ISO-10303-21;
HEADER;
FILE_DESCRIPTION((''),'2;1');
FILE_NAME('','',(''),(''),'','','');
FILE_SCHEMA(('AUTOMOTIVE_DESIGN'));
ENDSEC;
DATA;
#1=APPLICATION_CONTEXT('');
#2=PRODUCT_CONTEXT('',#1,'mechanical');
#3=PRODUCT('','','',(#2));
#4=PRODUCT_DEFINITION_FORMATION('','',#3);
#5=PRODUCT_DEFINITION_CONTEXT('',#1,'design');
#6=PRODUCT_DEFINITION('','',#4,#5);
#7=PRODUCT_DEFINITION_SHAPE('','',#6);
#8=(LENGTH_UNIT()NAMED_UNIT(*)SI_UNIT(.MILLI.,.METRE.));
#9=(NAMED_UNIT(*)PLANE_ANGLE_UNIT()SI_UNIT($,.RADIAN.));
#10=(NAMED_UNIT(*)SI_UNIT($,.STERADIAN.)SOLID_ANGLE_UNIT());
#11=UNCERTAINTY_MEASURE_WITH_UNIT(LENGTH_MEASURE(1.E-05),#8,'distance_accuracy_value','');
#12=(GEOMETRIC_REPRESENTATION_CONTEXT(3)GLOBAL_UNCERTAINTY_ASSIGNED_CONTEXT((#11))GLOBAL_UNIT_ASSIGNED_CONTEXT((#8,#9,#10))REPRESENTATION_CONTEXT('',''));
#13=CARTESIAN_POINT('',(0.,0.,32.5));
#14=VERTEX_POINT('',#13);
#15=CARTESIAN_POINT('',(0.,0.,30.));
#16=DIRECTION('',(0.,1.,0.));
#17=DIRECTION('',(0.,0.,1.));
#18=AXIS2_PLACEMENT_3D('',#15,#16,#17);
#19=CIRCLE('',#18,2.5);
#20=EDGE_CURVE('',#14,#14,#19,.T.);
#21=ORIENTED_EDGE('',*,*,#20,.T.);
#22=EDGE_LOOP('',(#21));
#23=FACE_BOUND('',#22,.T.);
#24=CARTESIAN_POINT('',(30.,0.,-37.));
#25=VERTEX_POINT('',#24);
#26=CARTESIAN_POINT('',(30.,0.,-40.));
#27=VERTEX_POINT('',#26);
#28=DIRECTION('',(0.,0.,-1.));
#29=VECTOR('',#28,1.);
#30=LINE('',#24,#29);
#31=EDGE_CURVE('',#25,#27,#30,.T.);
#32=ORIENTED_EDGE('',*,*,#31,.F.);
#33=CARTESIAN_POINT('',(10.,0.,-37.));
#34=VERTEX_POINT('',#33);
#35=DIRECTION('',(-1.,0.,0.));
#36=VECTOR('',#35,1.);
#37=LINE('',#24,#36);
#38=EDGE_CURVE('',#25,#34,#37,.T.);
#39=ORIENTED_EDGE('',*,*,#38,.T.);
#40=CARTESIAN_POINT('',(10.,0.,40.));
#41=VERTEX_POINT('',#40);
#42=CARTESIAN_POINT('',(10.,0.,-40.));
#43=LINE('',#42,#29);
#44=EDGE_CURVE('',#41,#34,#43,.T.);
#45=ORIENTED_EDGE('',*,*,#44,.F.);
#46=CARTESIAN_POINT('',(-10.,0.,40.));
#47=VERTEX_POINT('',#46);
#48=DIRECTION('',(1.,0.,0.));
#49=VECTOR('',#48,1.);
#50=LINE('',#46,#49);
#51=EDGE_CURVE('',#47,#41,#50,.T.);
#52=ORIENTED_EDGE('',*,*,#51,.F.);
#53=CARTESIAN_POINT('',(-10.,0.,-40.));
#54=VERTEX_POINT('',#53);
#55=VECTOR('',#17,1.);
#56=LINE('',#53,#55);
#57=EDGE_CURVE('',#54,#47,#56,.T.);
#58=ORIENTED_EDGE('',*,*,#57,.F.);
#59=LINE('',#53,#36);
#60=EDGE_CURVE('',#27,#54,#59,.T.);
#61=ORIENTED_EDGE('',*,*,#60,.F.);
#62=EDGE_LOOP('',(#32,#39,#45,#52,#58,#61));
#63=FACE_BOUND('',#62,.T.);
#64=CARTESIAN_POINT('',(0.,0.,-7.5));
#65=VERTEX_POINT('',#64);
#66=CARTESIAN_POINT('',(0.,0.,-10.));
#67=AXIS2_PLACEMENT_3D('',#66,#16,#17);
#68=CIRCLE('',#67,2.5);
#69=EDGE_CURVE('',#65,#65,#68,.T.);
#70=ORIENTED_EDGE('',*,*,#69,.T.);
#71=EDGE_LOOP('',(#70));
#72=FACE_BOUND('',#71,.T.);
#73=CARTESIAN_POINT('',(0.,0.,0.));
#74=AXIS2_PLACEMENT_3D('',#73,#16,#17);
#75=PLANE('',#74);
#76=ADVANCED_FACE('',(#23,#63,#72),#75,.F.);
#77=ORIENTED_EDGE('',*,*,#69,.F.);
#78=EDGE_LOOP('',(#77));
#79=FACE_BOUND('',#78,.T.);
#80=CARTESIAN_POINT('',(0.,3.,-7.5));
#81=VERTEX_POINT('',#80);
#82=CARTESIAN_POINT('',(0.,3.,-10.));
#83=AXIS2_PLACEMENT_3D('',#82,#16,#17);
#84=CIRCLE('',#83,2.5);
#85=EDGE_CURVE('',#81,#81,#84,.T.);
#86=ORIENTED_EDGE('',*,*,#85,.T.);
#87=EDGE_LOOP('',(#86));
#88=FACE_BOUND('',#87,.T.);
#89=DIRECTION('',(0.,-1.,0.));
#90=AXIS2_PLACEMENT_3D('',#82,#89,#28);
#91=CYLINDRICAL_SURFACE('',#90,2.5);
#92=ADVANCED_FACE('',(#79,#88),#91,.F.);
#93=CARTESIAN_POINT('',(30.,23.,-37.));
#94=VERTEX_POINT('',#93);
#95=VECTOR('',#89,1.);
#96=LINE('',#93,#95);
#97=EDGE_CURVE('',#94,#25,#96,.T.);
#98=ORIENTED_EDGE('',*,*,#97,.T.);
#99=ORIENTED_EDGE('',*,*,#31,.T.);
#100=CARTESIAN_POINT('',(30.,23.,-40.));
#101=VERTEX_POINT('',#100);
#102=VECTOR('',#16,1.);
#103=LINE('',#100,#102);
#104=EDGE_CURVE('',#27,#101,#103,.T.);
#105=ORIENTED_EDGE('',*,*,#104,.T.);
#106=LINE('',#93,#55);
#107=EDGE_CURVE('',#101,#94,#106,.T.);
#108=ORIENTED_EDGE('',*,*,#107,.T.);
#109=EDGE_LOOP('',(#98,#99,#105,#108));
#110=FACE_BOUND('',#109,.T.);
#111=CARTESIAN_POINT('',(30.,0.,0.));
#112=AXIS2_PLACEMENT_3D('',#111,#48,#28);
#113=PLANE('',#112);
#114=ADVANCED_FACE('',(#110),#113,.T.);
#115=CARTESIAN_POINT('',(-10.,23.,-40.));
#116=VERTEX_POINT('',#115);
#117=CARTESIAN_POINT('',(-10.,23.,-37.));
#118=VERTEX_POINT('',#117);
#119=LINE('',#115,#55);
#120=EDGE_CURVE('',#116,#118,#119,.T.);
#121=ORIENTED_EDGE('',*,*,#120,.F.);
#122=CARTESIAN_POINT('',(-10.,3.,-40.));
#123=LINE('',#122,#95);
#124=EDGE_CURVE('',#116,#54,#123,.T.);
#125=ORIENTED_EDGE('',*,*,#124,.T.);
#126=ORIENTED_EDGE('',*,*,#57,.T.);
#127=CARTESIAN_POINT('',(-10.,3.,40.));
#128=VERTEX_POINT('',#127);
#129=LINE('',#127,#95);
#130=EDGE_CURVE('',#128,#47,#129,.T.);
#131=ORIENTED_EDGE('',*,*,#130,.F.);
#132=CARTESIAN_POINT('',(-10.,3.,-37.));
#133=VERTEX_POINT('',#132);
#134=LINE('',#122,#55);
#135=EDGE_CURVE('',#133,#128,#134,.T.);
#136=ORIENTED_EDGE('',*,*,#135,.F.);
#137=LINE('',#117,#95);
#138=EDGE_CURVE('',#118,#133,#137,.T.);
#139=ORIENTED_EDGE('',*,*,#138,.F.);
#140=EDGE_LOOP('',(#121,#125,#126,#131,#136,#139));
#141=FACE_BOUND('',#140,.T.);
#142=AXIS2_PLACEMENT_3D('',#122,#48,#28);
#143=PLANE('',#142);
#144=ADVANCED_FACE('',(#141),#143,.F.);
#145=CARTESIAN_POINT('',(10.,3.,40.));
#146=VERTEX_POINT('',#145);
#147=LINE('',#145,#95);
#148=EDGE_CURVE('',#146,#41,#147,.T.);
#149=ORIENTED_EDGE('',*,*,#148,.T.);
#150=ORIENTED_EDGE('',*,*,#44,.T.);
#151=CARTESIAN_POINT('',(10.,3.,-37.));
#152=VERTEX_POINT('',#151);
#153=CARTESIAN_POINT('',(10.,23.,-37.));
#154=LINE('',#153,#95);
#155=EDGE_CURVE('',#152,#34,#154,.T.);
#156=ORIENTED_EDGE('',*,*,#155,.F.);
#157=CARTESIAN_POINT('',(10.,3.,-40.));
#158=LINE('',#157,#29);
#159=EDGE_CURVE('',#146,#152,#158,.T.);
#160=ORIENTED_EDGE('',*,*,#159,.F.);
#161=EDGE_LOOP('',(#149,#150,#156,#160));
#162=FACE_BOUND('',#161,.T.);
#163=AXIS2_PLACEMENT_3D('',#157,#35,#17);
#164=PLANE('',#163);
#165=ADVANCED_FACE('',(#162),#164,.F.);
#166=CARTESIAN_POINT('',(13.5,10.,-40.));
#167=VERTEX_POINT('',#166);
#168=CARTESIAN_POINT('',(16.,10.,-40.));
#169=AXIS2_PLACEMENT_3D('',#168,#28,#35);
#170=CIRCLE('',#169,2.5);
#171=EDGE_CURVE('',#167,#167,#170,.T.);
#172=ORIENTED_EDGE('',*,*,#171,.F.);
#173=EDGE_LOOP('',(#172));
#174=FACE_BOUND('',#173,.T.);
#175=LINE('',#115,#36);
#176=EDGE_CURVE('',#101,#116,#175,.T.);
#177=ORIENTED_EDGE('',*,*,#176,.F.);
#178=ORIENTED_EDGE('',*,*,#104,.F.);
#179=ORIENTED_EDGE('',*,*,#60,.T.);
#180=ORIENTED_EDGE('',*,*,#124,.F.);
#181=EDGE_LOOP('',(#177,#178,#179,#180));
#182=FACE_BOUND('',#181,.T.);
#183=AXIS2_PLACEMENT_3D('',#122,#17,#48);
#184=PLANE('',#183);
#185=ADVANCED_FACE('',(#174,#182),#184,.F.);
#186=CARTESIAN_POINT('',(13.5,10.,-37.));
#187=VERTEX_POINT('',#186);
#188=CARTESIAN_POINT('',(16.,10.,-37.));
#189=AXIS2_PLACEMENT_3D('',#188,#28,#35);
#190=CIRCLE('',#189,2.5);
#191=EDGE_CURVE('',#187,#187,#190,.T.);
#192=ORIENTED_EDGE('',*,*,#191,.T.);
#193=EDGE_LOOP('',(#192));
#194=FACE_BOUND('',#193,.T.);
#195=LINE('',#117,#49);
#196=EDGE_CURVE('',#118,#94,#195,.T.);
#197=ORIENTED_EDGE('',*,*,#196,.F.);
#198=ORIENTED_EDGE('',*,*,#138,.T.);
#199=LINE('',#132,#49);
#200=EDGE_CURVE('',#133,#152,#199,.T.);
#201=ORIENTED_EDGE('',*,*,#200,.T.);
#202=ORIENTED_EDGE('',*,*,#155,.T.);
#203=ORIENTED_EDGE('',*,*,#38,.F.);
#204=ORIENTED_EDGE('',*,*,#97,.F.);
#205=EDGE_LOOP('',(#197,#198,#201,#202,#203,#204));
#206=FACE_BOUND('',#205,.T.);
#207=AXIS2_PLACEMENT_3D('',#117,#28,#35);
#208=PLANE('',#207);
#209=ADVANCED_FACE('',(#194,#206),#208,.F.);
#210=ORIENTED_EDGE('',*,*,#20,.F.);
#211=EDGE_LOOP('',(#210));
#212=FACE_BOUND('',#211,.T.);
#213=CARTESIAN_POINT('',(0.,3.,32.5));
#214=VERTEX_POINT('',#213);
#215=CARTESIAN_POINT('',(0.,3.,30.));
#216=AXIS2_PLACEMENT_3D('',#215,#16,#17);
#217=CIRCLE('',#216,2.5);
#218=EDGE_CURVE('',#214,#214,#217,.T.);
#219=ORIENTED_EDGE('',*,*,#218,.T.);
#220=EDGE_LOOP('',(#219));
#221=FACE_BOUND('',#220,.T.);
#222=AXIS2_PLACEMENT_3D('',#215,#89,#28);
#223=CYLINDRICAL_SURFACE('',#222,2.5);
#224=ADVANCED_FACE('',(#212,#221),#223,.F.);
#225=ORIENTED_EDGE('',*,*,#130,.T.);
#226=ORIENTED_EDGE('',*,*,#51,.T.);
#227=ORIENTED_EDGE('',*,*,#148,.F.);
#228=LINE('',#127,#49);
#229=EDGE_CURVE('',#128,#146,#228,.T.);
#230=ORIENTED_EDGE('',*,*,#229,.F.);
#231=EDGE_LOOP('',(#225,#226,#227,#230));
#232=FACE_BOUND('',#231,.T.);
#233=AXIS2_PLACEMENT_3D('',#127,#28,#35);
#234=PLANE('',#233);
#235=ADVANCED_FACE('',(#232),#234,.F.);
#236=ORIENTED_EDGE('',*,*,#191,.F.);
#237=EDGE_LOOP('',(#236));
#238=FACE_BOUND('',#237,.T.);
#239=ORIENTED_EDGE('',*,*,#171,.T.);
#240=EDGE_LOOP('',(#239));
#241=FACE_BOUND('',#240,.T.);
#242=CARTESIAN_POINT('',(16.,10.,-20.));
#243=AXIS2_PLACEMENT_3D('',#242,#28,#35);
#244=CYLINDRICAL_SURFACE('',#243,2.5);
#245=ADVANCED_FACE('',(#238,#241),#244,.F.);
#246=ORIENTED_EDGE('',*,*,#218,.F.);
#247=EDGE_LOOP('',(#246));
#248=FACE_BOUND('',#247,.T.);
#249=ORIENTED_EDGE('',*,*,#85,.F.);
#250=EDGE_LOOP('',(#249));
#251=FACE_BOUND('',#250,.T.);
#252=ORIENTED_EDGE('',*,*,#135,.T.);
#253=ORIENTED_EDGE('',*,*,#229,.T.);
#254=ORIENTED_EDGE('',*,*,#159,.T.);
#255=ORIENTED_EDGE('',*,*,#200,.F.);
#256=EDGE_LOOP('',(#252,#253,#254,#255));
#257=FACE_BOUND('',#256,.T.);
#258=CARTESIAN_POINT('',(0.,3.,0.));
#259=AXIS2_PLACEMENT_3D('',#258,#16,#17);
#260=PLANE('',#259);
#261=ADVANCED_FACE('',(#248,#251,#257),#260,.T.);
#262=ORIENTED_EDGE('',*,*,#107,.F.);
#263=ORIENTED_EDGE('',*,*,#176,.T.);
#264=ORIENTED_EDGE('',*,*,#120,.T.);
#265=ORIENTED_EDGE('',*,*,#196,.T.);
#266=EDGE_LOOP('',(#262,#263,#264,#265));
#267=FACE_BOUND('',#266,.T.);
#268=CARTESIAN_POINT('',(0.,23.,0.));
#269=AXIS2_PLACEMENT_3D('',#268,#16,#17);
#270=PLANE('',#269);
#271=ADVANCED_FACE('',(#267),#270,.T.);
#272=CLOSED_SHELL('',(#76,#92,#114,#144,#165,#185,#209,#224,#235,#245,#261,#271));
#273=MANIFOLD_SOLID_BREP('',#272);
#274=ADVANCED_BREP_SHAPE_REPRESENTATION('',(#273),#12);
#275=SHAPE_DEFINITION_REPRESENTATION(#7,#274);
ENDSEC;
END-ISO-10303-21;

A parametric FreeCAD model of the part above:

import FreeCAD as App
import Part
import Sketcher

V = App.Vector


def add_polygon(sketch, points):
    """Adds a closed chain of lines whose ends are joined by coincident constraints."""
    first, n = sketch.GeometryCount, len(points)
    for a, b in zip(points, points[1:] + points[:1]):
        sketch.addGeometry(Part.LineSegment(App.Vector(*a, 0), App.Vector(*b, 0)), False)
    for i in range(n):
        sketch.addConstraint(Sketcher.Constraint("Coincident", first + i, 2, first + (i + 1) % n, 1))

doc = App.newDocument("Part")
body = doc.addObject("PartDesign::Body", "Body")

# Sketch on XZ plane
sketch1 = doc.addObject("Sketcher::SketchObject", "Sketch")
body.addObject(sketch1)
sketch1.AttachmentSupport = (doc.XZ_Plane, [""])
sketch1.MapMode = "FlatFace"
add_polygon(sketch1, [(-10, -40), (-10, 40), (10, 40), (10, -40)])  # lines 0-3
sketch1.addGeometry(Part.Circle(V(0, 30, 0), V(0, 0, 1), 2.5), False)  # 4
sketch1.addGeometry(Part.Circle(V(0, -10, 0), V(0, 0, 1), 2.5), False)  # 5
sketch1.addConstraint([
    Sketcher.Constraint("Vertical", 0),
    Sketcher.Constraint("Horizontal", 1),
    Sketcher.Constraint("Vertical", 2),
    Sketcher.Constraint("Horizontal", 3),
    Sketcher.Constraint("Equal", 4, 5),
    Sketcher.Constraint("Symmetric", 0, 2, 2, 2, -1, 1),
    Sketcher.Constraint("PointOnObject", 4, 3, -2),
    Sketcher.Constraint("PointOnObject", 5, 3, -2),
    Sketcher.Constraint("Diameter", 4, 5.0),
    Sketcher.Constraint("DistanceX", 1, 1, 1, 2, 20.0),
    Sketcher.Constraint("DistanceY", 0, 1, 0, 2, 80.0),
    Sketcher.Constraint("DistanceY", -1, 1, 4, 3, 30.0),
    Sketcher.Constraint("DistanceY", 5, 3, -1, 1, 10.0),
])
pad1 = doc.addObject("PartDesign::Pad", "Pad")
body.addObject(pad1)
pad1.Profile = sketch1
pad1.Length = 3
pad1.Reversed = True

# Sketch on XZ plane
sketch2 = doc.addObject("Sketcher::SketchObject", "Sketch001")
body.addObject(sketch2)
sketch2.AttachmentSupport = (doc.XZ_Plane, [""])
sketch2.MapMode = "FlatFace"
sketch2.AttachmentOffset = App.Placement(V(0, 0, -3), App.Rotation())
add_polygon(sketch2, [(-10, -40), (-10, -37), (10, -37), (10, -40)])  # lines 0-3
sketch2.addConstraint([
    Sketcher.Constraint("Vertical", 0),
    Sketcher.Constraint("Horizontal", 1),
    Sketcher.Constraint("Vertical", 2),
    Sketcher.Constraint("Horizontal", 3),
    Sketcher.Constraint("DistanceX", 1, 1, 1, 2, 20.0),
    Sketcher.Constraint("DistanceY", 0, 1, 0, 2, 3.0),
    Sketcher.Constraint("DistanceX", 0, 2, -1, 1, 10.0),
    Sketcher.Constraint("DistanceY", 0, 2, -1, 1, 37.0),
])
pad2 = doc.addObject("PartDesign::Pad", "Pad001")
body.addObject(pad2)
pad2.Profile = sketch2
pad2.Length = 20
pad2.Reversed = True

# Sketch on YZ plane
sketch3 = doc.addObject("Sketcher::SketchObject", "Sketch002")
body.addObject(sketch3)
sketch3.AttachmentSupport = (doc.YZ_Plane, [""])
sketch3.MapMode = "FlatFace"
sketch3.AttachmentOffset = App.Placement(V(0, 0, 10), App.Rotation())
add_polygon(sketch3, [(23, -37), (0, -37), (0, -40), (23, -40)])  # lines 0-3
sketch3.addConstraint([
    Sketcher.Constraint("Horizontal", 0),
    Sketcher.Constraint("Vertical", 1),
    Sketcher.Constraint("Horizontal", 2),
    Sketcher.Constraint("Vertical", 3),
    Sketcher.Constraint("PointOnObject", 0, 2, -2),
    Sketcher.Constraint("DistanceX", 0, 2, 0, 1, 23.0),
    Sketcher.Constraint("DistanceY", 1, 2, 1, 1, 3.0),
    Sketcher.Constraint("DistanceY", 0, 2, -1, 1, 37.0),
])
pad3 = doc.addObject("PartDesign::Pad", "Pad002")
body.addObject(pad3)
pad3.Profile = sketch3
pad3.Length = 20

# Sketch on XY plane
sketch4 = doc.addObject("Sketcher::SketchObject", "Sketch003")
body.addObject(sketch4)
sketch4.AttachmentSupport = (doc.XY_Plane, [""])
sketch4.MapMode = "FlatFace"
sketch4.AttachmentOffset = App.Placement(V(0, 0, -40), App.Rotation())
sketch4.addGeometry(Part.Circle(V(16, 10, 0), V(0, 0, 1), 2.5), False)
sketch4.addConstraint([
    Sketcher.Constraint("Diameter", 0, 5.0),
    Sketcher.Constraint("DistanceX", -1, 1, 0, 3, 16.0),
    Sketcher.Constraint("DistanceY", -1, 1, 0, 3, 10.0),
])
pocket1 = doc.addObject("PartDesign::Pocket", "Pocket")
body.addObject(pocket1)
pocket1.Profile = sketch4
pocket1.Length = 20
pocket1.Reversed = True

doc.recompute()
